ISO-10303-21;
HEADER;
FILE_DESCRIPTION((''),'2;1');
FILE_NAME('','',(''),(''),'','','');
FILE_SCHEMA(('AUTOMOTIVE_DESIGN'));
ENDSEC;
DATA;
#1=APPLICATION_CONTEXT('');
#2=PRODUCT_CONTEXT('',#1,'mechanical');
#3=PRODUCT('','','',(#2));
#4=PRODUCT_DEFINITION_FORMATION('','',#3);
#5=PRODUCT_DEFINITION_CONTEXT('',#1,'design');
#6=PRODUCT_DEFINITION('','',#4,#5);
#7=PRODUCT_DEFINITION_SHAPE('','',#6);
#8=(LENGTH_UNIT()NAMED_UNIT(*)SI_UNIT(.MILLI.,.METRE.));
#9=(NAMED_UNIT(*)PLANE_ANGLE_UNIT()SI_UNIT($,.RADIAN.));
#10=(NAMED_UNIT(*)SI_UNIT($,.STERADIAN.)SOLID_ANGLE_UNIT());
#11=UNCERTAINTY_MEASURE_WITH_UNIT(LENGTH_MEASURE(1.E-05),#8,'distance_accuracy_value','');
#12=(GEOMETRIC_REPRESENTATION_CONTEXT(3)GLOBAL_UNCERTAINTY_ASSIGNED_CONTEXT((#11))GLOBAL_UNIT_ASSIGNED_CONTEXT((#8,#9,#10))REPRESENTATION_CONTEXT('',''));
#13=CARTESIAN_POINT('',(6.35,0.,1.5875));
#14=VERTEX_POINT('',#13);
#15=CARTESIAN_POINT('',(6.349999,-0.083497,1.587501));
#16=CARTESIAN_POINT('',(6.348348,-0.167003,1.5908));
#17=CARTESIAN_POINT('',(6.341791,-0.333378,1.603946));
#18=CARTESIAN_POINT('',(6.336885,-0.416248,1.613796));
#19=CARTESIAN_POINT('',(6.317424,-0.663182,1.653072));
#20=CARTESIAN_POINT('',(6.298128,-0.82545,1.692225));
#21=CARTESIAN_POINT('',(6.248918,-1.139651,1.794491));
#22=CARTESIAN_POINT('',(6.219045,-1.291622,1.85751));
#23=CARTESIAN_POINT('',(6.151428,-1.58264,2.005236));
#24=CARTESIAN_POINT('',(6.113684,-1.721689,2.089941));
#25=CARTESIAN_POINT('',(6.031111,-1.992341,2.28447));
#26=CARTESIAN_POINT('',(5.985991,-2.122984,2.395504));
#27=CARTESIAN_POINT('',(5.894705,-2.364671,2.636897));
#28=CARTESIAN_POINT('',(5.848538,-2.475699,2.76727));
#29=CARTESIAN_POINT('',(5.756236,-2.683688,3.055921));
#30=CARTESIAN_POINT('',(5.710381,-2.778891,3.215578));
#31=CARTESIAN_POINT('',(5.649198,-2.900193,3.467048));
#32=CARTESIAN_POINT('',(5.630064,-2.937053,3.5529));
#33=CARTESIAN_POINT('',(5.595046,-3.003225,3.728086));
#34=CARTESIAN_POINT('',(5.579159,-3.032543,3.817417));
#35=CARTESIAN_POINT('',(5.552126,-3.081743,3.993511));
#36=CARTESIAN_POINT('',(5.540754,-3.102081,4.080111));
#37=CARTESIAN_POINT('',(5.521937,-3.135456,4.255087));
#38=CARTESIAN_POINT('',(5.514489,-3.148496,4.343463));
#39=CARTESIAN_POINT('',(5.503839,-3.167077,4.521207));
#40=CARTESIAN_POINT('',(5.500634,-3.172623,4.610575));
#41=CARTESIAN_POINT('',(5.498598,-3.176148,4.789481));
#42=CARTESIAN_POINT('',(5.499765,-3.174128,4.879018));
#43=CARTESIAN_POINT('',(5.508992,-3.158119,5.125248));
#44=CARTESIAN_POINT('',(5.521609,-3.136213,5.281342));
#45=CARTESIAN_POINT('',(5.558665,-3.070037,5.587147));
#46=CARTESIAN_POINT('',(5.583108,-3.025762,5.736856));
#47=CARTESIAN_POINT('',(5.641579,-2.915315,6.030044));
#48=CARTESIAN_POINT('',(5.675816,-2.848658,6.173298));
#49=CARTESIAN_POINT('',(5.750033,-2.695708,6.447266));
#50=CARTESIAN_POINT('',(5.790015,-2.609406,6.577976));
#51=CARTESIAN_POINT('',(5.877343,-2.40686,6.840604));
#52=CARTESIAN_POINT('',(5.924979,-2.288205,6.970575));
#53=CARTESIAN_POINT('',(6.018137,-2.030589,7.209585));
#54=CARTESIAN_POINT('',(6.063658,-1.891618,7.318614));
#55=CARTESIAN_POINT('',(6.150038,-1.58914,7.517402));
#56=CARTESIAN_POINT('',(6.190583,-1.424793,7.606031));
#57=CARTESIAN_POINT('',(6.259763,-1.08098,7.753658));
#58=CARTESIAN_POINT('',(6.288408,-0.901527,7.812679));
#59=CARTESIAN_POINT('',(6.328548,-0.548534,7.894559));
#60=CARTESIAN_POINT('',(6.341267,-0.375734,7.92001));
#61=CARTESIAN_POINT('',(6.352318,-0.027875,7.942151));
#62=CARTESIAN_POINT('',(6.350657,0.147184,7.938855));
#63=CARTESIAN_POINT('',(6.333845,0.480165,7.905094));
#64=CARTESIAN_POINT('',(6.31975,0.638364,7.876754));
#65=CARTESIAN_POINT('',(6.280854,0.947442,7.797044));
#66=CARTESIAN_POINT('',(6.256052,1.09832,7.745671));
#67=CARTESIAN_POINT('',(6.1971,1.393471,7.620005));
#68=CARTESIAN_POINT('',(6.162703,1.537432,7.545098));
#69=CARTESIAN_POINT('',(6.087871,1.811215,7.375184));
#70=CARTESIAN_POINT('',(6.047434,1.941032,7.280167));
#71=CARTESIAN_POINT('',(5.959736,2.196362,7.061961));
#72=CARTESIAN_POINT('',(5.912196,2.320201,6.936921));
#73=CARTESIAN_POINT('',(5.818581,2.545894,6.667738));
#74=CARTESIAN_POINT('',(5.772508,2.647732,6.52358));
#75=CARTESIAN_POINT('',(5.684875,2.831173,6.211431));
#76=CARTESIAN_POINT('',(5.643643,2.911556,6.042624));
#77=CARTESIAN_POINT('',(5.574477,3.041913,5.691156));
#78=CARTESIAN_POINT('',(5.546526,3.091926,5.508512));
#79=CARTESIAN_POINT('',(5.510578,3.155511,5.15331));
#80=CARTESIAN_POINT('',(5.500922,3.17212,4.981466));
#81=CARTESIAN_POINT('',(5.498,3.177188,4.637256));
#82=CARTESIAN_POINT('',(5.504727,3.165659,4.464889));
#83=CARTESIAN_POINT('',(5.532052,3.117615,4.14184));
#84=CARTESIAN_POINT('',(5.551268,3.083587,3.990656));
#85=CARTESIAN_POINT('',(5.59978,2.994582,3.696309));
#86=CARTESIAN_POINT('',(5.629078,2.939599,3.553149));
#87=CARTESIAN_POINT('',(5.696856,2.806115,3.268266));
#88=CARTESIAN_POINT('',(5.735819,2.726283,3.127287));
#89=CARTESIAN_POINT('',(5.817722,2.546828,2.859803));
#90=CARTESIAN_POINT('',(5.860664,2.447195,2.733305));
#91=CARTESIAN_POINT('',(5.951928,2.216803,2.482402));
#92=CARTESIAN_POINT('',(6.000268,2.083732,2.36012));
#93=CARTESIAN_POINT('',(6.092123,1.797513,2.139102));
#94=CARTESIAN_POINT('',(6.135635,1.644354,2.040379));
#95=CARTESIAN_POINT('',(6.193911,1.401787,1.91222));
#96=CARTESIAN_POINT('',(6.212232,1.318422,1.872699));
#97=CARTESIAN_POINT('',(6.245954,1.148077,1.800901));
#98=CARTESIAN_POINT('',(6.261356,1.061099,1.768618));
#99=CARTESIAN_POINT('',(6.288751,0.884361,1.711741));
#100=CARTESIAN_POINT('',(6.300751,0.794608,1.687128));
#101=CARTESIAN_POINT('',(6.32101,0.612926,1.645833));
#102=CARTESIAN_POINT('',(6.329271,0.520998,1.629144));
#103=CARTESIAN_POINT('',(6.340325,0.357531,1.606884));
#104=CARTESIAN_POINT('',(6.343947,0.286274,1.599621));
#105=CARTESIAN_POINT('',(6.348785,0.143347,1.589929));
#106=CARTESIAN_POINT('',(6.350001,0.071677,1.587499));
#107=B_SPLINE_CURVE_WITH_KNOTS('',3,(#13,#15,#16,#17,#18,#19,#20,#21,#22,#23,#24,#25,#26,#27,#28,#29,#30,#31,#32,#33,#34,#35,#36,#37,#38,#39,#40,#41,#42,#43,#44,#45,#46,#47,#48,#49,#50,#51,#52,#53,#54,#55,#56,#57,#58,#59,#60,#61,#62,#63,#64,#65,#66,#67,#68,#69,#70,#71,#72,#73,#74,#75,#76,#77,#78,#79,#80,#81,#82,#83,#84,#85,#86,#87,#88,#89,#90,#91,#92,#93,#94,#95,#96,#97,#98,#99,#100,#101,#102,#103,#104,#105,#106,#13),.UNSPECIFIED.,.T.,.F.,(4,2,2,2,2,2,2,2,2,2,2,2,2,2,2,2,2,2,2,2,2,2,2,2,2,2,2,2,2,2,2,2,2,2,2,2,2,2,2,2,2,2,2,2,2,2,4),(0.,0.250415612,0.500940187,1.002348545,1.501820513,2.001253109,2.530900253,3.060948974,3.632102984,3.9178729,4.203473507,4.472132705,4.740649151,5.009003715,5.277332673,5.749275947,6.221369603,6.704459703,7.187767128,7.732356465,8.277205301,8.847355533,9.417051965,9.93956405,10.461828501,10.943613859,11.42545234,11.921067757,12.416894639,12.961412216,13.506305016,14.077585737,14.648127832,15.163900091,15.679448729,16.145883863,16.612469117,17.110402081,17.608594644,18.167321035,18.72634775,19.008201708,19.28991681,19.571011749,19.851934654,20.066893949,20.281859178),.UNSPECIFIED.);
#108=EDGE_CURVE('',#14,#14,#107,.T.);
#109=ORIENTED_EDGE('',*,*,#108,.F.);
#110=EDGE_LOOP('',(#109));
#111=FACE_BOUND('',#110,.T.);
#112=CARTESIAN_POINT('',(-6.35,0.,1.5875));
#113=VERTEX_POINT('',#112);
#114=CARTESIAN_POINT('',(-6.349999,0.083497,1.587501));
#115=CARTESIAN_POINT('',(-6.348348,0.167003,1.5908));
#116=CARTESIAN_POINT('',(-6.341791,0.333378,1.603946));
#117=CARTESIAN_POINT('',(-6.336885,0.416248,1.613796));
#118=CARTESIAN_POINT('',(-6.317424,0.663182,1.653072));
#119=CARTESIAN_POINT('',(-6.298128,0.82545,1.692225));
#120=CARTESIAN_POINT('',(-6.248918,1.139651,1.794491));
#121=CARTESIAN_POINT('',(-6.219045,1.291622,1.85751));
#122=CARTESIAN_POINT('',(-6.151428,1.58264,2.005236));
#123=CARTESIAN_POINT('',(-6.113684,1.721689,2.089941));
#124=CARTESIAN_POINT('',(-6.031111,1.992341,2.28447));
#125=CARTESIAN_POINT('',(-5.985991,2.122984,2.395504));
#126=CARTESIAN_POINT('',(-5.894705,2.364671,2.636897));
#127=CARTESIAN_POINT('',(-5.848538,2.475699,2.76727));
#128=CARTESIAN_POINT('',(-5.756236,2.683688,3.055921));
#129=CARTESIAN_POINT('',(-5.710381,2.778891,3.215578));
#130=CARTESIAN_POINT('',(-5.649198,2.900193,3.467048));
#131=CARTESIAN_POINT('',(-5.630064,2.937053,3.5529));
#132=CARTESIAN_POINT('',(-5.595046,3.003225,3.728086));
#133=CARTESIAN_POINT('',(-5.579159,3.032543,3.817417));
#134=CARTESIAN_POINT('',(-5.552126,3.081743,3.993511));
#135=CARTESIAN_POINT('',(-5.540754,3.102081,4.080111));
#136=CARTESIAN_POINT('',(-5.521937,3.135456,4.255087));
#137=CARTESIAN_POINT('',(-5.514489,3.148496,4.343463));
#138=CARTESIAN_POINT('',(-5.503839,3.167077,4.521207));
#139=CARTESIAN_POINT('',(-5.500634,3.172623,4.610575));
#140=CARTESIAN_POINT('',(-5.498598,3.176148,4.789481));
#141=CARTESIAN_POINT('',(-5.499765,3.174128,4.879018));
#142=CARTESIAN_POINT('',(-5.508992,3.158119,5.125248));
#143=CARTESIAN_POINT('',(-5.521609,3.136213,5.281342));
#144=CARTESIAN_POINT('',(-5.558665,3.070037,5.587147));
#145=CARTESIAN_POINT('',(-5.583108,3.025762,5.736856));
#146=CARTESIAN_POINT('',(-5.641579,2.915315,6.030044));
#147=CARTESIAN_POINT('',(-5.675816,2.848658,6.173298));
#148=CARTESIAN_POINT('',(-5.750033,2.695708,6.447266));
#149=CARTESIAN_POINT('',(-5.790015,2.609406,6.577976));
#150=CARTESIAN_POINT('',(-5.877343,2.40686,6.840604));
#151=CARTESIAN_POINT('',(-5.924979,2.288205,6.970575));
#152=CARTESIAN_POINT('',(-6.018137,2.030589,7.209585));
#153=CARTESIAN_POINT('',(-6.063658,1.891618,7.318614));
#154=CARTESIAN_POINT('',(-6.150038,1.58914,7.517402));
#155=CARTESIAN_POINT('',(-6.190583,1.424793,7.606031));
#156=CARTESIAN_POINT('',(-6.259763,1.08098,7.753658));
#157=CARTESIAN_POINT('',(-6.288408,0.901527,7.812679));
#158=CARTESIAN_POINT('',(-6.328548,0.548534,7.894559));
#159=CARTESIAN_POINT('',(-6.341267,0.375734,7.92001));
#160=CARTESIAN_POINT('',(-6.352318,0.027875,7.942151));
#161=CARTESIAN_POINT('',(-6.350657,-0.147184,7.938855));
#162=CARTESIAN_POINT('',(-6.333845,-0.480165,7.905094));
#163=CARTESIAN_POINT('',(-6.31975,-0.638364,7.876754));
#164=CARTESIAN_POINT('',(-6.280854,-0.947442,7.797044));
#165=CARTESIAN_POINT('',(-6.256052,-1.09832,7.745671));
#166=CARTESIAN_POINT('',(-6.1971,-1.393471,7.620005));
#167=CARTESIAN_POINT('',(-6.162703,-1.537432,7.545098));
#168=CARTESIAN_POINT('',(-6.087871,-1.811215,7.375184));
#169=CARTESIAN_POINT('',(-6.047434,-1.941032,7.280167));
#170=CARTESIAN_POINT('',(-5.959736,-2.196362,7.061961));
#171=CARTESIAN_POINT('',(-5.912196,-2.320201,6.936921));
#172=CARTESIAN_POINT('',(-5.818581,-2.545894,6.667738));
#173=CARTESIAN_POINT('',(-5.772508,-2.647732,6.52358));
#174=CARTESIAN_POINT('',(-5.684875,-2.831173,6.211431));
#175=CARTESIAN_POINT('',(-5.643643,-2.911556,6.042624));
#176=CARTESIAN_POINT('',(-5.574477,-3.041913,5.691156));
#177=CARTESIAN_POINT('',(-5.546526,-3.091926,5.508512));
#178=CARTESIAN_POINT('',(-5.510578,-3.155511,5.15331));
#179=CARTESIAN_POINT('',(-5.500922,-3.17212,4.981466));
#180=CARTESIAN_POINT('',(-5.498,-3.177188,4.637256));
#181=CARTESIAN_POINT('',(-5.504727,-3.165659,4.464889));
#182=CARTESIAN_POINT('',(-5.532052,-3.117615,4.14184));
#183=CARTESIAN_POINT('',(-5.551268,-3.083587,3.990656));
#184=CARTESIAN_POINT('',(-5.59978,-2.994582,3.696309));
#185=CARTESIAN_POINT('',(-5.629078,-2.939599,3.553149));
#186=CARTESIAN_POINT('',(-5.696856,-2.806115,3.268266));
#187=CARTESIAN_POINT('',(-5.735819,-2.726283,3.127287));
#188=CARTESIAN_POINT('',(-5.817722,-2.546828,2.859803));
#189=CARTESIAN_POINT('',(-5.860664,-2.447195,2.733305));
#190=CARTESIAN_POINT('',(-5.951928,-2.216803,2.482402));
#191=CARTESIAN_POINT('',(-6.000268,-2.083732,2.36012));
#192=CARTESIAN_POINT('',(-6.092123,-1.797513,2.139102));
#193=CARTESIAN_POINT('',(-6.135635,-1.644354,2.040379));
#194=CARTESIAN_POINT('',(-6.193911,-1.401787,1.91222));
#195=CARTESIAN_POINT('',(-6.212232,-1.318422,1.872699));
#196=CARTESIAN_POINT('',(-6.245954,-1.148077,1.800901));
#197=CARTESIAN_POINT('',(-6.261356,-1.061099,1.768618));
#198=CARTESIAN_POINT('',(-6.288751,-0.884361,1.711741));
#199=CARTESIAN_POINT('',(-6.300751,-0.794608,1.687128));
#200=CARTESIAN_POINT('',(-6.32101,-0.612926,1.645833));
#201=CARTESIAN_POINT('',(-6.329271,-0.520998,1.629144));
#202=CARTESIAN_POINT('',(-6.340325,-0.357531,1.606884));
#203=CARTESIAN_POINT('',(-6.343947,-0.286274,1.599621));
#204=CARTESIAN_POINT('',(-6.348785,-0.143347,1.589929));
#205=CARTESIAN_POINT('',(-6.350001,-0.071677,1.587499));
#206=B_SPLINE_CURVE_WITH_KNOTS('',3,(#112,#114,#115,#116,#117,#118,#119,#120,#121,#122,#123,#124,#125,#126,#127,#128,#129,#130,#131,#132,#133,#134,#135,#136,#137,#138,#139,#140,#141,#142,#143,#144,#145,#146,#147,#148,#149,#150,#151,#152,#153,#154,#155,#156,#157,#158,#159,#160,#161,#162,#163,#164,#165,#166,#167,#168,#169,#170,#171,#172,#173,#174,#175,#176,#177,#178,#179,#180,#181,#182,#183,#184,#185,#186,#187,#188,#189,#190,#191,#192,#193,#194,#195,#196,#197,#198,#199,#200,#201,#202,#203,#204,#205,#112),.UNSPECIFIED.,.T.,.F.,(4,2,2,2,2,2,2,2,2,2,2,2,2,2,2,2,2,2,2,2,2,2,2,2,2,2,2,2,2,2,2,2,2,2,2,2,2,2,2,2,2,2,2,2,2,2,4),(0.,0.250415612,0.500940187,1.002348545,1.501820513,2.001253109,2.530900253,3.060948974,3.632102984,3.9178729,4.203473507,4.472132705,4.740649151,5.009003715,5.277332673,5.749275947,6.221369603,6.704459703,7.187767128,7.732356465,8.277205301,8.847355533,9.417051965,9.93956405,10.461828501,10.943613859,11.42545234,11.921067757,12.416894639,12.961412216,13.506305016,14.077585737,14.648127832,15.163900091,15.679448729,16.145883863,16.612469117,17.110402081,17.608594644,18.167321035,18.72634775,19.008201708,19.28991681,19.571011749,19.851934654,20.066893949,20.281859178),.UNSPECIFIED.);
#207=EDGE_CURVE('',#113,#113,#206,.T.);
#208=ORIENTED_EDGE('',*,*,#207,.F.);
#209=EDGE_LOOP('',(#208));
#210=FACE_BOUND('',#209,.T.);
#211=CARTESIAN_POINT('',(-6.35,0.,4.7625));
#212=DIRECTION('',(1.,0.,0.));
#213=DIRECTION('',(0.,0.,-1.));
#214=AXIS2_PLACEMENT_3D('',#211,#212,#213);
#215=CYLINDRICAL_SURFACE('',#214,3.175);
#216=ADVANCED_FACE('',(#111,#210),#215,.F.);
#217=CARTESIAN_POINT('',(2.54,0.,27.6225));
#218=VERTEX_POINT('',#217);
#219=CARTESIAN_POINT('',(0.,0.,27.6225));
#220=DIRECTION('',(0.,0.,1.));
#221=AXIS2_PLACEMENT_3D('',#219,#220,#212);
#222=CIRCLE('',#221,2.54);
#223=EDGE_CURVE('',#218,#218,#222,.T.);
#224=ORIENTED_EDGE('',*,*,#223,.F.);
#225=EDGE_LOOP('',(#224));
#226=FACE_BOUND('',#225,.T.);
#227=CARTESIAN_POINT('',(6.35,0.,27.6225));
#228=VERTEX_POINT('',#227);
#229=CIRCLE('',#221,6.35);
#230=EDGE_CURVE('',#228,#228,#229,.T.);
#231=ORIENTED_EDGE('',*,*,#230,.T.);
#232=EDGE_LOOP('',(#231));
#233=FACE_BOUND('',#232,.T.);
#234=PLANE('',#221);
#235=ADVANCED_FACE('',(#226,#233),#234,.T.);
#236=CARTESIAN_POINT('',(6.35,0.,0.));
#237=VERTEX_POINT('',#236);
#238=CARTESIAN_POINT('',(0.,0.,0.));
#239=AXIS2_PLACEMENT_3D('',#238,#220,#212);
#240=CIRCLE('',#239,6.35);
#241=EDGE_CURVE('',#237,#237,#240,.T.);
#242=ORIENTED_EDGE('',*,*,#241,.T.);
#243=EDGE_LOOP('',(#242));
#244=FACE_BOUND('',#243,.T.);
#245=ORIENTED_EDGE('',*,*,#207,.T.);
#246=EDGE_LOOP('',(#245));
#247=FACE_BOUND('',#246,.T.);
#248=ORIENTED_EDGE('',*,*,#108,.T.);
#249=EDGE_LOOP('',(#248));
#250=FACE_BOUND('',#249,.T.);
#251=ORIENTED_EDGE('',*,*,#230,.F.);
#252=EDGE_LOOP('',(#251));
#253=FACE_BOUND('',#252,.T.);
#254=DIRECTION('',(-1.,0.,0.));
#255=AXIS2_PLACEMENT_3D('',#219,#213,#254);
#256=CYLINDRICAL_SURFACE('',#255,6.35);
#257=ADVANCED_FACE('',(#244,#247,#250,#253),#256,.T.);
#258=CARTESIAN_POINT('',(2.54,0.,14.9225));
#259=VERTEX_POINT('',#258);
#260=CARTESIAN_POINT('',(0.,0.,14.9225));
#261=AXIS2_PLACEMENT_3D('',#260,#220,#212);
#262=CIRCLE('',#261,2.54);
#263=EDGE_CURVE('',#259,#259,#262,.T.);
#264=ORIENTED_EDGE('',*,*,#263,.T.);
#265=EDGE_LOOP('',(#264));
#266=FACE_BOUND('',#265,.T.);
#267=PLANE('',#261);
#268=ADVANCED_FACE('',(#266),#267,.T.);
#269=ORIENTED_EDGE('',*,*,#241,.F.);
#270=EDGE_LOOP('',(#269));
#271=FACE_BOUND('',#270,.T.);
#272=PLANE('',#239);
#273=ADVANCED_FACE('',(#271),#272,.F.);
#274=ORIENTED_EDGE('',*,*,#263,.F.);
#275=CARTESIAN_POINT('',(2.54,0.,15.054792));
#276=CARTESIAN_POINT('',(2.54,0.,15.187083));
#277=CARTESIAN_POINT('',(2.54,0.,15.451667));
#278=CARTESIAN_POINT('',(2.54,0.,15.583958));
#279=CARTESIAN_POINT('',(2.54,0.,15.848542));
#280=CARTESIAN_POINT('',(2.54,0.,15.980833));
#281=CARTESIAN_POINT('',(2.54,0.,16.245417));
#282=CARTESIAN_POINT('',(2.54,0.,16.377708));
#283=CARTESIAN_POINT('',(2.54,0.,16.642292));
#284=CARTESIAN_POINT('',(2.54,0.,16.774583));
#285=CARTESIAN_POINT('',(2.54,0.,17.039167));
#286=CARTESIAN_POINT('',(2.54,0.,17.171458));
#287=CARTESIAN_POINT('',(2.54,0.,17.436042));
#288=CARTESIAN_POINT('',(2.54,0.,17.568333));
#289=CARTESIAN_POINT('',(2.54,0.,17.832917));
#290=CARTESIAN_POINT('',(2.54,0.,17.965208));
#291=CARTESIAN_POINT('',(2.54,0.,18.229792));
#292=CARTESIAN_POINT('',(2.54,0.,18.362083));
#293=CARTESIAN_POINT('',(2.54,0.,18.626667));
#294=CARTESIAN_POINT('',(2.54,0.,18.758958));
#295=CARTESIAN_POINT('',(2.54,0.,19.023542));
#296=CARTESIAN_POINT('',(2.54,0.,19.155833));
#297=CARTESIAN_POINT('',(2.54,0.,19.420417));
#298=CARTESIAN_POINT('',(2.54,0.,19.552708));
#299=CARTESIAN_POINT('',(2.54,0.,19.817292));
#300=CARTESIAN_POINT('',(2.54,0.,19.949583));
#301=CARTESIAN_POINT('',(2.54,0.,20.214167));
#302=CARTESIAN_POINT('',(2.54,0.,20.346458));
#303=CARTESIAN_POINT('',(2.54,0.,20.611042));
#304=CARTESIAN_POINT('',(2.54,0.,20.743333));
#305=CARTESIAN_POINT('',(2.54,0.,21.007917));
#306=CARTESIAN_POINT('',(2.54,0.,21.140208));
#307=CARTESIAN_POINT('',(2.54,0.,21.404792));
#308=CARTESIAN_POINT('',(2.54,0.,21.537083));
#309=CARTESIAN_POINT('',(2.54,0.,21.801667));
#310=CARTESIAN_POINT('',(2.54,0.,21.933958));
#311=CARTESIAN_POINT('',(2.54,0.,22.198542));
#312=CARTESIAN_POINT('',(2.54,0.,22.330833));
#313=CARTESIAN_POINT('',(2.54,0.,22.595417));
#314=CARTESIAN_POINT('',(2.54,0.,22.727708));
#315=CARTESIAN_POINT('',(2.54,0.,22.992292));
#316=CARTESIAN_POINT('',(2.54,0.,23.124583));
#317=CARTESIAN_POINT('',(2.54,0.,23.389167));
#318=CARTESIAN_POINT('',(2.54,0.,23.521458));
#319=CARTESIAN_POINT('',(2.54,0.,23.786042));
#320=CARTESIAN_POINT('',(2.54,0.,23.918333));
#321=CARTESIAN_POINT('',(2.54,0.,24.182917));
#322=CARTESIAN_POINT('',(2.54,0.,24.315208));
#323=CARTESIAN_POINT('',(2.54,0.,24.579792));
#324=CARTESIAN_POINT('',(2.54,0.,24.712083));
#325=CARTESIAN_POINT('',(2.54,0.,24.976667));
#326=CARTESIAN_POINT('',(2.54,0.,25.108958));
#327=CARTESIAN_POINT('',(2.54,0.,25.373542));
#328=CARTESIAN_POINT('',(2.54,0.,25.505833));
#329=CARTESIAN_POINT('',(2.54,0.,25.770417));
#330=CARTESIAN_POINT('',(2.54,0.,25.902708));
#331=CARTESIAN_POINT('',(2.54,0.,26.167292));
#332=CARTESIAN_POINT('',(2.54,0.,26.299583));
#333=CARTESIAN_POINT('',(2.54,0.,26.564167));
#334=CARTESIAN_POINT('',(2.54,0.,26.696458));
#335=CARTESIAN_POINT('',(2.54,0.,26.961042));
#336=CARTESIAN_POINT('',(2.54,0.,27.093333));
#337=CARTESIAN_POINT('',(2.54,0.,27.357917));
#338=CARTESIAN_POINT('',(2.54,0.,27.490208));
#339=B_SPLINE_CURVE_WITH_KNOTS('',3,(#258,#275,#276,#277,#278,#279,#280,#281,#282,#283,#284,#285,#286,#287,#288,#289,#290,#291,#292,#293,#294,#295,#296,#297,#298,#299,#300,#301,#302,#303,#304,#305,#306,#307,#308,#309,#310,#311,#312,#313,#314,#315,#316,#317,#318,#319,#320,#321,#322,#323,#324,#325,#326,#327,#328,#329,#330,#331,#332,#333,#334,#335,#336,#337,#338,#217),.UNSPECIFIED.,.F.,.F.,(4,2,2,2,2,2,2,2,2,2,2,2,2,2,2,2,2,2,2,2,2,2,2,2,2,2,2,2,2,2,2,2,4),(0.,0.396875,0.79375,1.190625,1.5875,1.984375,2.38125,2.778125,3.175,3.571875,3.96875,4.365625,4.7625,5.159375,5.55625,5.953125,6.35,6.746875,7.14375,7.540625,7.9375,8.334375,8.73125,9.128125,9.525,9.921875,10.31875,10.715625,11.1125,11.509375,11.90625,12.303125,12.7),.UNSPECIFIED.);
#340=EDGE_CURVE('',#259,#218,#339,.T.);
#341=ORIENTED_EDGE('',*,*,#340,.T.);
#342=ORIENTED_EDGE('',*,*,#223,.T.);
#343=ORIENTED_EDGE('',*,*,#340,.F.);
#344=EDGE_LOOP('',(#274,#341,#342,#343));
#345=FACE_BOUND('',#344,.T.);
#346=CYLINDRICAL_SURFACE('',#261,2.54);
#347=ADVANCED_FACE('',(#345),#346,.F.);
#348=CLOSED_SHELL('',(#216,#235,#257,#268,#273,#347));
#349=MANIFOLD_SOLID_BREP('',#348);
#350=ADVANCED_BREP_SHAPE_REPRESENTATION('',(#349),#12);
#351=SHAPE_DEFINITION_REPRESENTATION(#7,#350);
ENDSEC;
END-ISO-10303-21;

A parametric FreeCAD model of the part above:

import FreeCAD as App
import Part
import Sketcher
from FreeCAD import Vector
Q = App.Units.Quantity

doc = App.newDocument("Part")
body = doc.addObject("PartDesign::Body", "Body")

# Sketch on XY plane
sketch1 = body.newObject("Sketcher::SketchObject", "Sketch")
sketch1.AttachmentSupport = (doc.getObject("XY_Plane"), [""])
sketch1.MapMode = "FlatFace"
sketch1.addGeometry(Part.Circle(Vector(0, 0, 0), Vector(0, 0, 1), 6.35), False)
sketch1.addConstraint([
    Sketcher.Constraint("Coincident", 0, 3, -1, 1),
    Sketcher.Constraint("Diameter", 0, Q("0.5 in")),
])
pad1 = body.newObject("PartDesign::Pad", "Pad")
pad1.Profile = sketch1
pad1.Length = Q("1.0875 in")

# Sketch on YZ plane
sketch2 = body.newObject("Sketcher::SketchObject", "Sketch001")
sketch2.AttachmentSupport = (doc.getObject("YZ_Plane"), [""])
sketch2.MapMode = "FlatFace"
sketch2.addGeometry(Part.Circle(Vector(0, 4.7625, 0), Vector(0, 0, 1), 3.175), False)
sketch2.addConstraint([
    Sketcher.Constraint("PointOnObject", 0, 3, -2),
    Sketcher.Constraint("Diameter", 0, Q("0.25 in")),
    Sketcher.Constraint("DistanceY", -1, 1, 0, 3, Q("0.1875 in")),
])
pocket1 = body.newObject("PartDesign::Pocket", "Pocket")
pocket1.Profile = sketch2
pocket1.Type = "ThroughAll"
pocket1.Midplane = True

# Sketch on XY plane
sketch3 = body.newObject("Sketcher::SketchObject", "Sketch002")
sketch3.AttachmentSupport = (doc.getObject("XY_Plane"), [""])
sketch3.MapMode = "FlatFace"
sketch3.AttachmentOffset = App.Placement(Vector(0, 0, 1.0875 * 25.4), App.Rotation())
sketch3.addGeometry(Part.Circle(Vector(0, 0, 0), Vector(0, 0, 1), 2.54), False)
sketch3.addConstraint([
    Sketcher.Constraint("Coincident", 0, 3, -1, 1),
    Sketcher.Constraint("Diameter", 0, Q("0.2 in")),
])
pocket2 = body.newObject("PartDesign::Pocket", "Pocket001")
pocket2.Profile = sketch3
pocket2.Length = Q("0.5 in")

doc.recompute()
